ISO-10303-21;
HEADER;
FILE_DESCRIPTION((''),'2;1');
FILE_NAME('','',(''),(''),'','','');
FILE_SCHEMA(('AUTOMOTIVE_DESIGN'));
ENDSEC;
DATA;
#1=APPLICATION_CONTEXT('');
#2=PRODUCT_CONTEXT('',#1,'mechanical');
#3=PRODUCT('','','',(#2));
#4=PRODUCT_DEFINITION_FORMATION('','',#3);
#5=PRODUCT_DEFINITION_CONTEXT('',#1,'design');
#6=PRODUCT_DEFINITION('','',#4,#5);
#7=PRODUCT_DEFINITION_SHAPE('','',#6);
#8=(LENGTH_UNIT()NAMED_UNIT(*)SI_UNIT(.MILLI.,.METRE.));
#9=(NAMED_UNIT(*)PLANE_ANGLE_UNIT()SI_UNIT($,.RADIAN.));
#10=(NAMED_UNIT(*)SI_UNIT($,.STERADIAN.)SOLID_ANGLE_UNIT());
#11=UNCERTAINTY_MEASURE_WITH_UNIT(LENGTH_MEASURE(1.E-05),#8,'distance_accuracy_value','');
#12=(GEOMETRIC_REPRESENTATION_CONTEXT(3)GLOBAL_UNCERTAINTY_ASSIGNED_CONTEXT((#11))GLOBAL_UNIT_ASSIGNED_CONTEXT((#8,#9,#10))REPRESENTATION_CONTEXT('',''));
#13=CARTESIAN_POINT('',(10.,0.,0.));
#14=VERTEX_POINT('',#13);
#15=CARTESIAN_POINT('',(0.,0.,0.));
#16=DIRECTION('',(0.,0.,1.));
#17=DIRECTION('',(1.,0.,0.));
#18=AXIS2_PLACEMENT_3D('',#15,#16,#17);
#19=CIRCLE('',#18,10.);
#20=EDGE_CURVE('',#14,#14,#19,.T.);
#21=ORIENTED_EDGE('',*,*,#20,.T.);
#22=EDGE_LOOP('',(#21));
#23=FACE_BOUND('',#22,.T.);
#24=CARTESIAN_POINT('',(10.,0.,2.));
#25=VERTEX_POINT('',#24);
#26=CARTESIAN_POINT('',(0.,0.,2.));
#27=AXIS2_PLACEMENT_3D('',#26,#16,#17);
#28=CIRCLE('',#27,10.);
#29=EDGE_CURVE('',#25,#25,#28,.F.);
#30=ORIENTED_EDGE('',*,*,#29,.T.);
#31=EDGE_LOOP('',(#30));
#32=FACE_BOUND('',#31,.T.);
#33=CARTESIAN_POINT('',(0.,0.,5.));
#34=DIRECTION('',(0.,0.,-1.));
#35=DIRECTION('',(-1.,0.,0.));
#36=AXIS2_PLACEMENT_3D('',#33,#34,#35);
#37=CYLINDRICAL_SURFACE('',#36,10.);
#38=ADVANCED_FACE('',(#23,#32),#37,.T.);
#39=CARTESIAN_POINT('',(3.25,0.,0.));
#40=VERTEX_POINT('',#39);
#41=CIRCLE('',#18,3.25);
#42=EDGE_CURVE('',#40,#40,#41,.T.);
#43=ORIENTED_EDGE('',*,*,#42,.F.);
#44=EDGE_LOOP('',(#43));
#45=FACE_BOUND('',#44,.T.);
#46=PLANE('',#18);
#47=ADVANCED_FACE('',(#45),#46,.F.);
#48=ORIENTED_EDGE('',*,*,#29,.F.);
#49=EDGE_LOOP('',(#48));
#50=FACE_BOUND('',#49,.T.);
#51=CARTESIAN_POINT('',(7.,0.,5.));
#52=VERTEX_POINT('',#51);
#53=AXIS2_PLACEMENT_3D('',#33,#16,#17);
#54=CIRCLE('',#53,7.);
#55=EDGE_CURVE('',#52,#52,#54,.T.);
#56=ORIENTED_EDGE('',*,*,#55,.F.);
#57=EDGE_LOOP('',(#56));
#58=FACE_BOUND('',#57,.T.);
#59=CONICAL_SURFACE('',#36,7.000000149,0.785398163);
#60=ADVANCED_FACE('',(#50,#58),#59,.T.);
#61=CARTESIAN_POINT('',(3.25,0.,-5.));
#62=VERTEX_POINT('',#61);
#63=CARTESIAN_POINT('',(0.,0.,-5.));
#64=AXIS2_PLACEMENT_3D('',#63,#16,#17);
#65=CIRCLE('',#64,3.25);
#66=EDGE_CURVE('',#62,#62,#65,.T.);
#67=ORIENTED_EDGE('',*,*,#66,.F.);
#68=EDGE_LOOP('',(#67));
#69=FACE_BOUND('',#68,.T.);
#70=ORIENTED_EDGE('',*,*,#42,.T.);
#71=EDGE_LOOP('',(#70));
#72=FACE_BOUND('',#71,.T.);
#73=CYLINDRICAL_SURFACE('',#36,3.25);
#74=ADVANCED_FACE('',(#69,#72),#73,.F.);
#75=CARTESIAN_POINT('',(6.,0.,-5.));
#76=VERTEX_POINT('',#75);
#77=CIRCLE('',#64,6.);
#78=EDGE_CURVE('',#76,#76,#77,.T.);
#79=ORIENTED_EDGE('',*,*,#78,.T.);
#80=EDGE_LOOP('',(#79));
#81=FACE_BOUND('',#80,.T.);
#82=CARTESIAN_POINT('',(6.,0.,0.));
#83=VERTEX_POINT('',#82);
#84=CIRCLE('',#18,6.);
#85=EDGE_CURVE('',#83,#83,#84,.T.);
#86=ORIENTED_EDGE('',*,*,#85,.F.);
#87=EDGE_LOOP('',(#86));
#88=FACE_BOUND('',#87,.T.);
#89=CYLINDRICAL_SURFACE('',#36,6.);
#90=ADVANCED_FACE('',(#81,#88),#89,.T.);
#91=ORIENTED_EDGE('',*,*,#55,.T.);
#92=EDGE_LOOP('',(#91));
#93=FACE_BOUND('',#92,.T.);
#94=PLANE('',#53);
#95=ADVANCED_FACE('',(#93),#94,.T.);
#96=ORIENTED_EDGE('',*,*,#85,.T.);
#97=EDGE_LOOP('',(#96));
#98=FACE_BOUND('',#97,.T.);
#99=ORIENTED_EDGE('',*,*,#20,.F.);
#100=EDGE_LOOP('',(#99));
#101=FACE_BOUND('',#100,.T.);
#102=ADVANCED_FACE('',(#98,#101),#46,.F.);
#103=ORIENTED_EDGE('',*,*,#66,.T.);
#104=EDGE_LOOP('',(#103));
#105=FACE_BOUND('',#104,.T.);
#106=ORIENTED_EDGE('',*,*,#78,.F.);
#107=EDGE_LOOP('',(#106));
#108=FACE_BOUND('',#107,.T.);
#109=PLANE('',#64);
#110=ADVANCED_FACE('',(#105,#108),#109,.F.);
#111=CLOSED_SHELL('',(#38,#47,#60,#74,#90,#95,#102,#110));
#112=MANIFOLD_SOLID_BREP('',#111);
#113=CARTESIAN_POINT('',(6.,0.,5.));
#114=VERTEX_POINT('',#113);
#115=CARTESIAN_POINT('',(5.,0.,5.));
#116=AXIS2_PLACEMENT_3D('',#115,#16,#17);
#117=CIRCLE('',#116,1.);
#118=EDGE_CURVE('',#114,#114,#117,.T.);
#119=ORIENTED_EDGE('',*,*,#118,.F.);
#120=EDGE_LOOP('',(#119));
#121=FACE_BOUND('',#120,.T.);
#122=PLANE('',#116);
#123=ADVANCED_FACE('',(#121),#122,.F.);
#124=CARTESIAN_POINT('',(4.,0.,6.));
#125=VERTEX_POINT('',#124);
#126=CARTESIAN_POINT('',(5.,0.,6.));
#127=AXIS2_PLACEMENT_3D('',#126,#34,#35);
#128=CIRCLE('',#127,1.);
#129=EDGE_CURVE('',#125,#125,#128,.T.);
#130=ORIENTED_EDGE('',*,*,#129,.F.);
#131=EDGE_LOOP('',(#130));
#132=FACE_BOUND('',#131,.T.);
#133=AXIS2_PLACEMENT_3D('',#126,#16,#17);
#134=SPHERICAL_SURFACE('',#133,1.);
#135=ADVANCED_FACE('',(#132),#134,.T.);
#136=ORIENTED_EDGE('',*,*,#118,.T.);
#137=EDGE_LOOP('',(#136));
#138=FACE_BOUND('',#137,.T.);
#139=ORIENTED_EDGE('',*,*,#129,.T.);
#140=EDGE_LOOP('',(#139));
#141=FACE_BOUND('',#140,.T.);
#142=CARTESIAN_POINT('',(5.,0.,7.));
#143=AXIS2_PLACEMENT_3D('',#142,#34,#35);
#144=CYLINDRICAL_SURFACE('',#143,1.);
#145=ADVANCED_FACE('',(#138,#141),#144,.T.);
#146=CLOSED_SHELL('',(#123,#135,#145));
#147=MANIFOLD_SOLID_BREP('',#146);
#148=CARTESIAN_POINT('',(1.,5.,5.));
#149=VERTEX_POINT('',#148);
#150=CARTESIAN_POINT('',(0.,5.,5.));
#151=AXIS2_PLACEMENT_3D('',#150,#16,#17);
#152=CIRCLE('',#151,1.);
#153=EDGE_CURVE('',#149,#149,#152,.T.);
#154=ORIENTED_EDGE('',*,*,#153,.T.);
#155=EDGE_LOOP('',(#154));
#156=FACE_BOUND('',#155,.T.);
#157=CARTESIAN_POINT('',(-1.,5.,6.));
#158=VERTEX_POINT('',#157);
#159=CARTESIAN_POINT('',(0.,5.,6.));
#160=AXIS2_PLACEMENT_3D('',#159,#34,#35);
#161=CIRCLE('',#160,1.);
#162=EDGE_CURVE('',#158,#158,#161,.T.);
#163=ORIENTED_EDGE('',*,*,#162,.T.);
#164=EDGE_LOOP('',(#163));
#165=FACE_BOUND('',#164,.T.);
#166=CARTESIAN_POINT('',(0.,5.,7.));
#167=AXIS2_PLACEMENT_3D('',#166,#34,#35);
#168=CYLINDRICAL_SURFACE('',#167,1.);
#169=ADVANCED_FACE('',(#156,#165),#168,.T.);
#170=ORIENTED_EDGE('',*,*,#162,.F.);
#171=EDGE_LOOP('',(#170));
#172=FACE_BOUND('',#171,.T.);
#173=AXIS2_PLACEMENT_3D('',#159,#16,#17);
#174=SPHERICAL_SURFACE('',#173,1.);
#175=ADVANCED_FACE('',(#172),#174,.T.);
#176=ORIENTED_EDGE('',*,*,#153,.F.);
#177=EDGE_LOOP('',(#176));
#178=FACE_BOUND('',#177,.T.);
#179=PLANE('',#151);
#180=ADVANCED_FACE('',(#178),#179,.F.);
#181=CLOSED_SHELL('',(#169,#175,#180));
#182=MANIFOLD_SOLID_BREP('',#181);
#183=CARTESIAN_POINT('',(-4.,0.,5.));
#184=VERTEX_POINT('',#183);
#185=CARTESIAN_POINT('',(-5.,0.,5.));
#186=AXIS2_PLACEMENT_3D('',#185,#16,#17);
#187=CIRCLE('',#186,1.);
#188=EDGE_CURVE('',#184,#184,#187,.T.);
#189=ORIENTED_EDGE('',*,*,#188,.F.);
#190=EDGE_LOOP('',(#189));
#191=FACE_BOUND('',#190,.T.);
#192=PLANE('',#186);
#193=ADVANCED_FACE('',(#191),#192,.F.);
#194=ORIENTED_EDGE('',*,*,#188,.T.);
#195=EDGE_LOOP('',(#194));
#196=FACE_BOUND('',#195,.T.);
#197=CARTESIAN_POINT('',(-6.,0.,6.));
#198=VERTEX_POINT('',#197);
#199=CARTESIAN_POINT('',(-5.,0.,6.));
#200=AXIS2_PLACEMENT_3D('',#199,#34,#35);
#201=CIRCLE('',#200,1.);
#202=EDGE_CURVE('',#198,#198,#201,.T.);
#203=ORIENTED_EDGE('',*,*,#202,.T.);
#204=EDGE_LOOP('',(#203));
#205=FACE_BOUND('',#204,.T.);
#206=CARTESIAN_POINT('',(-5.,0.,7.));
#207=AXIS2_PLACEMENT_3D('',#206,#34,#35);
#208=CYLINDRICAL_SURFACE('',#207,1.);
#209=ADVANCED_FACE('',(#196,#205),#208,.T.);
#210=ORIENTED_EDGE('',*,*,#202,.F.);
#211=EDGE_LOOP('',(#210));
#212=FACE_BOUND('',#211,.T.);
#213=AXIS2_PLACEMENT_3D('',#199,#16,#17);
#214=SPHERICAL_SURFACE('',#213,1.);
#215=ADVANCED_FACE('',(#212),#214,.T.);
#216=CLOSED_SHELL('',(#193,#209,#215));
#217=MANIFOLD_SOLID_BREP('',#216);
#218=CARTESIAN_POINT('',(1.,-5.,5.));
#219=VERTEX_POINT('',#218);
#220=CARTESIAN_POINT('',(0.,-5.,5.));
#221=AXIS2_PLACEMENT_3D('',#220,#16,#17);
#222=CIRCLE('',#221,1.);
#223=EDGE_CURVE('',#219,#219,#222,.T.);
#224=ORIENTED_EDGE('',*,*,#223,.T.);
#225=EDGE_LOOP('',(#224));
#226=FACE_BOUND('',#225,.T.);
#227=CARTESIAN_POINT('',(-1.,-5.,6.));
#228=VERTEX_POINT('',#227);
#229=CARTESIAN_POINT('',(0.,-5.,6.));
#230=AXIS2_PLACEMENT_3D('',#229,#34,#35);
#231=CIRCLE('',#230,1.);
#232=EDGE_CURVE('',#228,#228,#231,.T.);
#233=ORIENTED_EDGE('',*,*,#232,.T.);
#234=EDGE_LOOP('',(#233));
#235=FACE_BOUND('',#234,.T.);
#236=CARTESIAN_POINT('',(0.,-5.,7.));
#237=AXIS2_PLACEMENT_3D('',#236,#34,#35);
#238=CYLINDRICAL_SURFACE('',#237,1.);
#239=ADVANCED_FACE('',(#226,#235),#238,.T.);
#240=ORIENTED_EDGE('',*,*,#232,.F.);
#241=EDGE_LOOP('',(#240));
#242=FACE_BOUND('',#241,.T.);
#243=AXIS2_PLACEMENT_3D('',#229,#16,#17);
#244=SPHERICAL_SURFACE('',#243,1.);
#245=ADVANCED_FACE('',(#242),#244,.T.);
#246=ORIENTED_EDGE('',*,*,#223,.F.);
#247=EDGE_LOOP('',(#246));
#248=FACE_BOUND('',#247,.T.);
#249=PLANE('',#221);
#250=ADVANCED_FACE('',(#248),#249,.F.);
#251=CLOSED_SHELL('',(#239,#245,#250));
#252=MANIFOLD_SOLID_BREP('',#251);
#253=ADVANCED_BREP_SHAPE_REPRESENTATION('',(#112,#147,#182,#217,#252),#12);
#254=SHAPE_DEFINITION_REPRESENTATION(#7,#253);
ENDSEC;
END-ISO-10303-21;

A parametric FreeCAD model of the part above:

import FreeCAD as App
import Part
import Sketcher
from FreeCAD import Vector


def edges_at(feature, points):
    """Names of the edges that pass closest to the given points."""
    edges = feature.Shape.Edges
    near = lambda p: min(range(len(edges)), key=lambda i: edges[i].distToShape(Part.Vertex(*p))[0])
    return sorted({f"Edge{near(p) + 1}" for p in points})

doc = App.newDocument("Part")
params = doc.addObject("Spreadsheet::Sheet", "Params")
for row, (alias, value) in enumerate([
    ("sketch1_diameter", "12 mm"),
    ("sketch1_diameter2", "6.5 mm"),
    ("pad1_length", "5 mm"),
    ("pad1_length2", "5 mm"),
    ("sketch2_diameter", "20 mm"),
    ("pad2_length", "5 mm"),
    ("chamfer_size", "3 mm"),
    ("sketch3_diameter", "2 mm"),
    ("pad3_length", "2 mm"),
    ("fillet_radius", "1 mm"),
    ("sketch4_diameter", "2 mm"),
    ("pad4_length", "2 mm"),
    ("fillet2_radius", "1 mm"),
    ("sketch5_diameter", "2 mm"),
    ("pad5_length", "2 mm"),
    ("fillet3_radius", "1 mm"),
    ("sketch6_diameter", "2 mm"),
    ("pad6_length", "2 mm"),
    ("fillet4_radius", "1 mm"),
], start=1):
    params.set(f"A{row}", alias)
    params.set(f"B{row}", "=" + value)
    params.setAlias(f"B{row}", alias)

body = doc.addObject("PartDesign::Body", "Body")

# Sketch on XY plane
sketch1 = doc.addObject("Sketcher::SketchObject", "Sketch")
body.addObject(sketch1)
sketch1.AttachmentSupport = (doc.XY_Plane, [""])
sketch1.MapMode = "FlatFace"
sketch1.addGeometry([
    Part.Circle(Vector(0, 0, 0), Vector(0, 0, 1), 6),
    Part.Circle(Vector(0, 0, 0), Vector(0, 0, 1), 3.25),
], False)
sketch1.addConstraint([
    Sketcher.Constraint("Coincident", 0, 3, -1, 1),
    Sketcher.Constraint("Coincident", 1, 3, -1, 1),
    Sketcher.Constraint("Diameter", 0, 12.0),
    Sketcher.Constraint("Diameter", 1, 6.5),
])
sketch1.setExpression("Constraints[2]", "Params.sketch1_diameter")
sketch1.setExpression("Constraints[3]", "Params.sketch1_diameter2")
pad1 = doc.addObject("PartDesign::Pad", "Pad")
body.addObject(pad1)
pad1.Profile = sketch1
pad1.Type = "TwoLengths"
pad1.setExpression("Length", "Params.pad1_length")
pad1.setExpression("Length2", "Params.pad1_length2")

# Sketch on XY plane
sketch2 = doc.addObject("Sketcher::SketchObject", "Sketch001")
body.addObject(sketch2)
sketch2.AttachmentSupport = (doc.XY_Plane, [""])
sketch2.MapMode = "FlatFace"
sketch2.addGeometry(Part.Circle(Vector(0, 0, 0), Vector(0, 0, 1), 10), False)
sketch2.addConstraint([
    Sketcher.Constraint("Coincident", 0, 3, -1, 1),
    Sketcher.Constraint("Diameter", 0, 20.0),
])
sketch2.setExpression("Constraints[1]", "Params.sketch2_diameter")
pad2 = doc.addObject("PartDesign::Pad", "Pad001")
body.addObject(pad2)
pad2.Profile = sketch2
pad2.setExpression("Length", "Params.pad2_length")
doc.recompute()

chamfer = doc.addObject("PartDesign::Chamfer", "Chamfer")
body.addObject(chamfer)
chamfer.Base = (pad2, edges_at(pad2, [(-10, 0, 5)]))
chamfer.setExpression("Size", "Params.chamfer_size")
body2 = doc.addObject("PartDesign::Body", "Body001")

# Sketch on XY plane
sketch3 = doc.addObject("Sketcher::SketchObject", "Sketch002")
body2.addObject(sketch3)
sketch3.AttachmentSupport = (doc.getObject("XY_Plane001"), [""])
sketch3.MapMode = "FlatFace"
sketch3.AttachmentOffset = App.Placement(Vector(0, 0, 5), App.Rotation())
sketch3.addGeometry(Part.Circle(Vector(0, 5, 0), Vector(0, 0, 1), 1), False)
sketch3.addConstraint([
    Sketcher.Constraint("PointOnObject", 0, 3, -2),
    Sketcher.Constraint("Diameter", 0, 2.0),
    Sketcher.Constraint("DistanceY", -1, 1, 0, 3, 5.0),
])
sketch3.setExpression("Constraints[1]", "Params.sketch3_diameter")
pad3 = doc.addObject("PartDesign::Pad", "Pad002")
body2.addObject(pad3)
pad3.Profile = sketch3
pad3.setExpression("Length", "Params.pad3_length")
doc.recompute()

fillet = doc.addObject("PartDesign::Fillet", "Fillet")
body2.addObject(fillet)
fillet.Base = (pad3, edges_at(pad3, [(-1, 5, 7)]))
fillet.setExpression("Radius", "Params.fillet_radius")
body3 = doc.addObject("PartDesign::Body", "Body002")

# Sketch on XY plane
sketch4 = doc.addObject("Sketcher::SketchObject", "Sketch003")
body3.addObject(sketch4)
sketch4.AttachmentSupport = (doc.getObject("XY_Plane002"), [""])
sketch4.MapMode = "FlatFace"
sketch4.AttachmentOffset = App.Placement(Vector(0, 0, 5), App.Rotation())
sketch4.addGeometry(Part.Circle(Vector(5, 0, 0), Vector(0, 0, 1), 1), False)
sketch4.addConstraint([
    Sketcher.Constraint("PointOnObject", 0, 3, -1),
    Sketcher.Constraint("Diameter", 0, 2.0),
    Sketcher.Constraint("DistanceX", -1, 1, 0, 3, 5.0),
])
sketch4.setExpression("Constraints[1]", "Params.sketch4_diameter")
pad4 = doc.addObject("PartDesign::Pad", "Pad003")
body3.addObject(pad4)
pad4.Profile = sketch4
pad4.setExpression("Length", "Params.pad4_length")
doc.recompute()

fillet2 = doc.addObject("PartDesign::Fillet", "Fillet001")
body3.addObject(fillet2)
fillet2.Base = (pad4, edges_at(pad4, [(4, 0, 7)]))
fillet2.setExpression("Radius", "Params.fillet2_radius")
body4 = doc.addObject("PartDesign::Body", "Body003")

# Sketch on XY plane
sketch5 = doc.addObject("Sketcher::SketchObject", "Sketch004")
body4.addObject(sketch5)
sketch5.AttachmentSupport = (doc.getObject("XY_Plane003"), [""])
sketch5.MapMode = "FlatFace"
sketch5.AttachmentOffset = App.Placement(Vector(0, 0, 5), App.Rotation())
sketch5.addGeometry(Part.Circle(Vector(0, -5, 0), Vector(0, 0, 1), 1), False)
sketch5.addConstraint([
    Sketcher.Constraint("PointOnObject", 0, 3, -2),
    Sketcher.Constraint("Diameter", 0, 2.0),
    Sketcher.Constraint("DistanceY", 0, 3, -1, 1, 5.0),
])
sketch5.setExpression("Constraints[1]", "Params.sketch5_diameter")
pad5 = doc.addObject("PartDesign::Pad", "Pad004")
body4.addObject(pad5)
pad5.Profile = sketch5
pad5.setExpression("Length", "Params.pad5_length")
doc.recompute()

fillet3 = doc.addObject("PartDesign::Fillet", "Fillet002")
body4.addObject(fillet3)
fillet3.Base = (pad5, edges_at(pad5, [(-1, -5, 7)]))
fillet3.setExpression("Radius", "Params.fillet3_radius")
body5 = doc.addObject("PartDesign::Body", "Body004")

# Sketch on XY plane
sketch6 = doc.addObject("Sketcher::SketchObject", "Sketch005")
body5.addObject(sketch6)
sketch6.AttachmentSupport = (doc.getObject("XY_Plane004"), [""])
sketch6.MapMode = "FlatFace"
sketch6.AttachmentOffset = App.Placement(Vector(0, 0, 5), App.Rotation())
sketch6.addGeometry(Part.Circle(Vector(-5, 0, 0), Vector(0, 0, 1), 1), False)
sketch6.addConstraint([
    Sketcher.Constraint("PointOnObject", 0, 3, -1),
    Sketcher.Constraint("Diameter", 0, 2.0),
    Sketcher.Constraint("DistanceX", 0, 3, -1, 1, 5.0),
])
sketch6.setExpression("Constraints[1]", "Params.sketch6_diameter")
pad6 = doc.addObject("PartDesign::Pad", "Pad005")
body5.addObject(pad6)
pad6.Profile = sketch6
pad6.setExpression("Length", "Params.pad6_length")
doc.recompute()

fillet4 = doc.addObject("PartDesign::Fillet", "Fillet003")
body5.addObject(fillet4)
fillet4.Base = (pad6, edges_at(pad6, [(-6, 0, 7)]))
fillet4.setExpression("Radius", "Params.fillet4_radius")

doc.recompute()
